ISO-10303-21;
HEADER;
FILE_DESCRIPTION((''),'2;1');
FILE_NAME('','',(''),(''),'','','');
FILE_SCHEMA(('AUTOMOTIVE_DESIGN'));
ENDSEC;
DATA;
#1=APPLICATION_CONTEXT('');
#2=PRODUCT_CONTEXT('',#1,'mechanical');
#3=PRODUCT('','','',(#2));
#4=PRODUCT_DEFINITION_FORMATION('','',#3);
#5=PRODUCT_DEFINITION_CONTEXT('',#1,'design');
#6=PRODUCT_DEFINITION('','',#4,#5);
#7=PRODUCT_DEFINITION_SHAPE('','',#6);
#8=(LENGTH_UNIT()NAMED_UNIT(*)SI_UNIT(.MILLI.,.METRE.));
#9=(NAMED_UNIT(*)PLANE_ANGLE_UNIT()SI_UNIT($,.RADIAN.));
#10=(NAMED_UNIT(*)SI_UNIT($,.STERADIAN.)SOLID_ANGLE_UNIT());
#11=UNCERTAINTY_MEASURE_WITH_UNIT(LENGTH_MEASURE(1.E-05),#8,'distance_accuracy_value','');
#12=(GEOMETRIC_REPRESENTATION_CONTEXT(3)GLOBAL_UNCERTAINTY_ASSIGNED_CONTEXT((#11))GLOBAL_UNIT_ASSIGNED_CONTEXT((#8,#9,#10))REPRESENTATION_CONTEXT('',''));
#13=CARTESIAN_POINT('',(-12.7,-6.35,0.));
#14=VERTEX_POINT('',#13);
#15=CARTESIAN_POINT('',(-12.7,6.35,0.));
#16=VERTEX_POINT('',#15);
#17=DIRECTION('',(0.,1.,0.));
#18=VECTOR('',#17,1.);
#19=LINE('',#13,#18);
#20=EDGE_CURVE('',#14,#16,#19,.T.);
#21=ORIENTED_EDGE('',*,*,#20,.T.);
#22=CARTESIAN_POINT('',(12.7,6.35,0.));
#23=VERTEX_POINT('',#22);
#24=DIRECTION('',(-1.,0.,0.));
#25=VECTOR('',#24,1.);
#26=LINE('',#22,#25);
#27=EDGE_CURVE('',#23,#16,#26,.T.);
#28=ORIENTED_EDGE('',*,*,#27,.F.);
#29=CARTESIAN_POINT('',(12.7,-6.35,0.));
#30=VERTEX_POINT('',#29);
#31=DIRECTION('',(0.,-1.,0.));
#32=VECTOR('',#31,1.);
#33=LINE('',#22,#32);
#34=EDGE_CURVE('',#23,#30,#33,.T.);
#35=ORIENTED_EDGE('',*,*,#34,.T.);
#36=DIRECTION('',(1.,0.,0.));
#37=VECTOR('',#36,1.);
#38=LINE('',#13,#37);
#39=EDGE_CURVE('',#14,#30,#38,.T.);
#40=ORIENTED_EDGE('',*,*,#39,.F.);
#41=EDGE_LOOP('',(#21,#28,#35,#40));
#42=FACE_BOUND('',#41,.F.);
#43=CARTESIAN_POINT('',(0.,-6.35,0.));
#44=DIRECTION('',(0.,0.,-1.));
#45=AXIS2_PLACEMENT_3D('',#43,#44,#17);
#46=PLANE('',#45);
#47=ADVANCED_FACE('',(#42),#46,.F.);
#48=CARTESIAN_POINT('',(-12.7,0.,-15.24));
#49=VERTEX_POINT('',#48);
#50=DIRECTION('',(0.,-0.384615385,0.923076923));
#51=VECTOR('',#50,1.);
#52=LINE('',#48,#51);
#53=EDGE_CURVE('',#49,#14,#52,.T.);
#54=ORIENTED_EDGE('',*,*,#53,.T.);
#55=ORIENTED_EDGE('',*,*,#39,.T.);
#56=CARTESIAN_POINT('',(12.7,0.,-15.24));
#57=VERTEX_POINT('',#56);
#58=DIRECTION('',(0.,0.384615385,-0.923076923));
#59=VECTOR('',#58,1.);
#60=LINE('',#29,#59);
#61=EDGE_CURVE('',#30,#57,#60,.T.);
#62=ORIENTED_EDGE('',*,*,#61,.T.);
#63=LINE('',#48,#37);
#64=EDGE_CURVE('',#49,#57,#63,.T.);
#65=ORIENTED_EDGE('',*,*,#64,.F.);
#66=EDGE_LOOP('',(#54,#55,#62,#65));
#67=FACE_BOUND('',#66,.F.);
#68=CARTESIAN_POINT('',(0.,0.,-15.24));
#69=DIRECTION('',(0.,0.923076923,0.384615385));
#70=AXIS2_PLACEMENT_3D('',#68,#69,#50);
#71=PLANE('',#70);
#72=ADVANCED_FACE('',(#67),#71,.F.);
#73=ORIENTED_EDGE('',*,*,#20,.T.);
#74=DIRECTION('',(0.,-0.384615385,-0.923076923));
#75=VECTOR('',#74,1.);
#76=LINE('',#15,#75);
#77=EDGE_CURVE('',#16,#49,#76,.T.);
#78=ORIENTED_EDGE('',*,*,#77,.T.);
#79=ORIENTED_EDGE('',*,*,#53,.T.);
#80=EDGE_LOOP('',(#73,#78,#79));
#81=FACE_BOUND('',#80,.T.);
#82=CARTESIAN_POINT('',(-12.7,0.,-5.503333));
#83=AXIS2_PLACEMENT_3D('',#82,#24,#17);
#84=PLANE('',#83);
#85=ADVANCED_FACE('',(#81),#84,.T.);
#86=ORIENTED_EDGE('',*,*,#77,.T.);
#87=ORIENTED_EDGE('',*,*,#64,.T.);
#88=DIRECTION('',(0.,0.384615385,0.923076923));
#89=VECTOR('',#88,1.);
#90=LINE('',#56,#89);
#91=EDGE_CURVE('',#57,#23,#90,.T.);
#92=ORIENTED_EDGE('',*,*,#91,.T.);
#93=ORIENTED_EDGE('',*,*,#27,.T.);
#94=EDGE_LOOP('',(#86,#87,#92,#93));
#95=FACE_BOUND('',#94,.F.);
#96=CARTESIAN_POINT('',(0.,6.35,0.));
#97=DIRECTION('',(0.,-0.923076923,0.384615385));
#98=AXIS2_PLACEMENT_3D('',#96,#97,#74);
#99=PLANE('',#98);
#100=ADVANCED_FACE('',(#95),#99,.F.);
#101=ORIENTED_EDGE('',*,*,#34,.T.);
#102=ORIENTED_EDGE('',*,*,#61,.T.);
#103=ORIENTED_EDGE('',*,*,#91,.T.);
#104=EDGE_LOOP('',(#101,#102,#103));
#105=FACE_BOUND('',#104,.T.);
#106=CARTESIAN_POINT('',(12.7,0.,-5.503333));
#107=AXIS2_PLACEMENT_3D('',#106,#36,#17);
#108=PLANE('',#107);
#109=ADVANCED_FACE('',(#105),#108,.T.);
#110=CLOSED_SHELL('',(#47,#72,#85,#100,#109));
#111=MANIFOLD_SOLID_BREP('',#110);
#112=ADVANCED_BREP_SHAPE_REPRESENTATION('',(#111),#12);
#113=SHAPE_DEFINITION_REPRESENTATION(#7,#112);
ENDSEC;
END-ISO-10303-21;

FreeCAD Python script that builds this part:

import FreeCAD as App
import Part
import Sketcher

V = App.Vector
Q = App.Units.Quantity

doc = App.newDocument("Part")
body = doc.addObject("PartDesign::Body", "Body")

sketch1 = doc.addObject("Sketcher::SketchObject", "Sketch")
body.addObject(sketch1)
sketch1.AttachmentSupport = (doc.YZ_Plane, [""])
sketch1.MapMode = "FlatFace"
sketch1.addGeometry([
    Part.LineSegment(V(6, 0, 0), V(-6, 0, 0)),
    Part.LineSegment(V(-6, 0, 0), V(0, -15, 0)),
    Part.LineSegment(V(0, -15, 0), V(6, 0, 0)),
], False)
sketch1.addConstraint([
    Sketcher.Constraint("Coincident", 0, 2, 1, 1),
    Sketcher.Constraint("Coincident", 1, 2, 2, 1),
    Sketcher.Constraint("Coincident", 2, 2, 0, 1),
    Sketcher.Constraint("Horizontal", 0),
    Sketcher.Constraint("Symmetric", 0, 2, 2, 2, -1, 1),
    Sketcher.Constraint("PointOnObject", 1, 2, -2),
    Sketcher.Constraint("DistanceX", 0, 2, 0, 1, Q("0.5 in")),
    Sketcher.Constraint("DistanceY", 1, 2, -1, 1, Q("0.6 in")),
])
pad1 = doc.addObject("PartDesign::Pad", "Pad")
body.addObject(pad1)
pad1.Profile = sketch1
pad1.Length = Q("0.5 in")

sketch2 = doc.addObject("Sketcher::SketchObject", "Sketch001")
body.addObject(sketch2)
sketch2.AttachmentSupport = (doc.YZ_Plane, [""])
sketch2.MapMode = "FlatFace"
sketch2.addGeometry([
    Part.LineSegment(V(-6, 0, 0), V(6, 0, 0)),
    Part.LineSegment(V(6, 0, 0), V(0, -15, 0)),
    Part.LineSegment(V(0, -15, 0), V(-6, 0, 0)),
], False)
sketch2.addConstraint([
    Sketcher.Constraint("Coincident", 0, 2, 1, 1),
    Sketcher.Constraint("Coincident", 1, 2, 2, 1),
    Sketcher.Constraint("Coincident", 2, 2, 0, 1),
    Sketcher.Constraint("Horizontal", 0),
    Sketcher.Constraint("Symmetric", 0, 2, 2, 2, -1, 1),
    Sketcher.Constraint("PointOnObject", 1, 2, -2),
    Sketcher.Constraint("DistanceX", 0, 1, 0, 2, Q("0.5 in")),
    Sketcher.Constraint("DistanceY", 1, 2, -1, 1, Q("0.6 in")),
])
pad2 = doc.addObject("PartDesign::Pad", "Pad001")
body.addObject(pad2)
pad2.Profile = sketch2
pad2.Length = Q("0.5 in")
pad2.Reversed = True

doc.recompute()
